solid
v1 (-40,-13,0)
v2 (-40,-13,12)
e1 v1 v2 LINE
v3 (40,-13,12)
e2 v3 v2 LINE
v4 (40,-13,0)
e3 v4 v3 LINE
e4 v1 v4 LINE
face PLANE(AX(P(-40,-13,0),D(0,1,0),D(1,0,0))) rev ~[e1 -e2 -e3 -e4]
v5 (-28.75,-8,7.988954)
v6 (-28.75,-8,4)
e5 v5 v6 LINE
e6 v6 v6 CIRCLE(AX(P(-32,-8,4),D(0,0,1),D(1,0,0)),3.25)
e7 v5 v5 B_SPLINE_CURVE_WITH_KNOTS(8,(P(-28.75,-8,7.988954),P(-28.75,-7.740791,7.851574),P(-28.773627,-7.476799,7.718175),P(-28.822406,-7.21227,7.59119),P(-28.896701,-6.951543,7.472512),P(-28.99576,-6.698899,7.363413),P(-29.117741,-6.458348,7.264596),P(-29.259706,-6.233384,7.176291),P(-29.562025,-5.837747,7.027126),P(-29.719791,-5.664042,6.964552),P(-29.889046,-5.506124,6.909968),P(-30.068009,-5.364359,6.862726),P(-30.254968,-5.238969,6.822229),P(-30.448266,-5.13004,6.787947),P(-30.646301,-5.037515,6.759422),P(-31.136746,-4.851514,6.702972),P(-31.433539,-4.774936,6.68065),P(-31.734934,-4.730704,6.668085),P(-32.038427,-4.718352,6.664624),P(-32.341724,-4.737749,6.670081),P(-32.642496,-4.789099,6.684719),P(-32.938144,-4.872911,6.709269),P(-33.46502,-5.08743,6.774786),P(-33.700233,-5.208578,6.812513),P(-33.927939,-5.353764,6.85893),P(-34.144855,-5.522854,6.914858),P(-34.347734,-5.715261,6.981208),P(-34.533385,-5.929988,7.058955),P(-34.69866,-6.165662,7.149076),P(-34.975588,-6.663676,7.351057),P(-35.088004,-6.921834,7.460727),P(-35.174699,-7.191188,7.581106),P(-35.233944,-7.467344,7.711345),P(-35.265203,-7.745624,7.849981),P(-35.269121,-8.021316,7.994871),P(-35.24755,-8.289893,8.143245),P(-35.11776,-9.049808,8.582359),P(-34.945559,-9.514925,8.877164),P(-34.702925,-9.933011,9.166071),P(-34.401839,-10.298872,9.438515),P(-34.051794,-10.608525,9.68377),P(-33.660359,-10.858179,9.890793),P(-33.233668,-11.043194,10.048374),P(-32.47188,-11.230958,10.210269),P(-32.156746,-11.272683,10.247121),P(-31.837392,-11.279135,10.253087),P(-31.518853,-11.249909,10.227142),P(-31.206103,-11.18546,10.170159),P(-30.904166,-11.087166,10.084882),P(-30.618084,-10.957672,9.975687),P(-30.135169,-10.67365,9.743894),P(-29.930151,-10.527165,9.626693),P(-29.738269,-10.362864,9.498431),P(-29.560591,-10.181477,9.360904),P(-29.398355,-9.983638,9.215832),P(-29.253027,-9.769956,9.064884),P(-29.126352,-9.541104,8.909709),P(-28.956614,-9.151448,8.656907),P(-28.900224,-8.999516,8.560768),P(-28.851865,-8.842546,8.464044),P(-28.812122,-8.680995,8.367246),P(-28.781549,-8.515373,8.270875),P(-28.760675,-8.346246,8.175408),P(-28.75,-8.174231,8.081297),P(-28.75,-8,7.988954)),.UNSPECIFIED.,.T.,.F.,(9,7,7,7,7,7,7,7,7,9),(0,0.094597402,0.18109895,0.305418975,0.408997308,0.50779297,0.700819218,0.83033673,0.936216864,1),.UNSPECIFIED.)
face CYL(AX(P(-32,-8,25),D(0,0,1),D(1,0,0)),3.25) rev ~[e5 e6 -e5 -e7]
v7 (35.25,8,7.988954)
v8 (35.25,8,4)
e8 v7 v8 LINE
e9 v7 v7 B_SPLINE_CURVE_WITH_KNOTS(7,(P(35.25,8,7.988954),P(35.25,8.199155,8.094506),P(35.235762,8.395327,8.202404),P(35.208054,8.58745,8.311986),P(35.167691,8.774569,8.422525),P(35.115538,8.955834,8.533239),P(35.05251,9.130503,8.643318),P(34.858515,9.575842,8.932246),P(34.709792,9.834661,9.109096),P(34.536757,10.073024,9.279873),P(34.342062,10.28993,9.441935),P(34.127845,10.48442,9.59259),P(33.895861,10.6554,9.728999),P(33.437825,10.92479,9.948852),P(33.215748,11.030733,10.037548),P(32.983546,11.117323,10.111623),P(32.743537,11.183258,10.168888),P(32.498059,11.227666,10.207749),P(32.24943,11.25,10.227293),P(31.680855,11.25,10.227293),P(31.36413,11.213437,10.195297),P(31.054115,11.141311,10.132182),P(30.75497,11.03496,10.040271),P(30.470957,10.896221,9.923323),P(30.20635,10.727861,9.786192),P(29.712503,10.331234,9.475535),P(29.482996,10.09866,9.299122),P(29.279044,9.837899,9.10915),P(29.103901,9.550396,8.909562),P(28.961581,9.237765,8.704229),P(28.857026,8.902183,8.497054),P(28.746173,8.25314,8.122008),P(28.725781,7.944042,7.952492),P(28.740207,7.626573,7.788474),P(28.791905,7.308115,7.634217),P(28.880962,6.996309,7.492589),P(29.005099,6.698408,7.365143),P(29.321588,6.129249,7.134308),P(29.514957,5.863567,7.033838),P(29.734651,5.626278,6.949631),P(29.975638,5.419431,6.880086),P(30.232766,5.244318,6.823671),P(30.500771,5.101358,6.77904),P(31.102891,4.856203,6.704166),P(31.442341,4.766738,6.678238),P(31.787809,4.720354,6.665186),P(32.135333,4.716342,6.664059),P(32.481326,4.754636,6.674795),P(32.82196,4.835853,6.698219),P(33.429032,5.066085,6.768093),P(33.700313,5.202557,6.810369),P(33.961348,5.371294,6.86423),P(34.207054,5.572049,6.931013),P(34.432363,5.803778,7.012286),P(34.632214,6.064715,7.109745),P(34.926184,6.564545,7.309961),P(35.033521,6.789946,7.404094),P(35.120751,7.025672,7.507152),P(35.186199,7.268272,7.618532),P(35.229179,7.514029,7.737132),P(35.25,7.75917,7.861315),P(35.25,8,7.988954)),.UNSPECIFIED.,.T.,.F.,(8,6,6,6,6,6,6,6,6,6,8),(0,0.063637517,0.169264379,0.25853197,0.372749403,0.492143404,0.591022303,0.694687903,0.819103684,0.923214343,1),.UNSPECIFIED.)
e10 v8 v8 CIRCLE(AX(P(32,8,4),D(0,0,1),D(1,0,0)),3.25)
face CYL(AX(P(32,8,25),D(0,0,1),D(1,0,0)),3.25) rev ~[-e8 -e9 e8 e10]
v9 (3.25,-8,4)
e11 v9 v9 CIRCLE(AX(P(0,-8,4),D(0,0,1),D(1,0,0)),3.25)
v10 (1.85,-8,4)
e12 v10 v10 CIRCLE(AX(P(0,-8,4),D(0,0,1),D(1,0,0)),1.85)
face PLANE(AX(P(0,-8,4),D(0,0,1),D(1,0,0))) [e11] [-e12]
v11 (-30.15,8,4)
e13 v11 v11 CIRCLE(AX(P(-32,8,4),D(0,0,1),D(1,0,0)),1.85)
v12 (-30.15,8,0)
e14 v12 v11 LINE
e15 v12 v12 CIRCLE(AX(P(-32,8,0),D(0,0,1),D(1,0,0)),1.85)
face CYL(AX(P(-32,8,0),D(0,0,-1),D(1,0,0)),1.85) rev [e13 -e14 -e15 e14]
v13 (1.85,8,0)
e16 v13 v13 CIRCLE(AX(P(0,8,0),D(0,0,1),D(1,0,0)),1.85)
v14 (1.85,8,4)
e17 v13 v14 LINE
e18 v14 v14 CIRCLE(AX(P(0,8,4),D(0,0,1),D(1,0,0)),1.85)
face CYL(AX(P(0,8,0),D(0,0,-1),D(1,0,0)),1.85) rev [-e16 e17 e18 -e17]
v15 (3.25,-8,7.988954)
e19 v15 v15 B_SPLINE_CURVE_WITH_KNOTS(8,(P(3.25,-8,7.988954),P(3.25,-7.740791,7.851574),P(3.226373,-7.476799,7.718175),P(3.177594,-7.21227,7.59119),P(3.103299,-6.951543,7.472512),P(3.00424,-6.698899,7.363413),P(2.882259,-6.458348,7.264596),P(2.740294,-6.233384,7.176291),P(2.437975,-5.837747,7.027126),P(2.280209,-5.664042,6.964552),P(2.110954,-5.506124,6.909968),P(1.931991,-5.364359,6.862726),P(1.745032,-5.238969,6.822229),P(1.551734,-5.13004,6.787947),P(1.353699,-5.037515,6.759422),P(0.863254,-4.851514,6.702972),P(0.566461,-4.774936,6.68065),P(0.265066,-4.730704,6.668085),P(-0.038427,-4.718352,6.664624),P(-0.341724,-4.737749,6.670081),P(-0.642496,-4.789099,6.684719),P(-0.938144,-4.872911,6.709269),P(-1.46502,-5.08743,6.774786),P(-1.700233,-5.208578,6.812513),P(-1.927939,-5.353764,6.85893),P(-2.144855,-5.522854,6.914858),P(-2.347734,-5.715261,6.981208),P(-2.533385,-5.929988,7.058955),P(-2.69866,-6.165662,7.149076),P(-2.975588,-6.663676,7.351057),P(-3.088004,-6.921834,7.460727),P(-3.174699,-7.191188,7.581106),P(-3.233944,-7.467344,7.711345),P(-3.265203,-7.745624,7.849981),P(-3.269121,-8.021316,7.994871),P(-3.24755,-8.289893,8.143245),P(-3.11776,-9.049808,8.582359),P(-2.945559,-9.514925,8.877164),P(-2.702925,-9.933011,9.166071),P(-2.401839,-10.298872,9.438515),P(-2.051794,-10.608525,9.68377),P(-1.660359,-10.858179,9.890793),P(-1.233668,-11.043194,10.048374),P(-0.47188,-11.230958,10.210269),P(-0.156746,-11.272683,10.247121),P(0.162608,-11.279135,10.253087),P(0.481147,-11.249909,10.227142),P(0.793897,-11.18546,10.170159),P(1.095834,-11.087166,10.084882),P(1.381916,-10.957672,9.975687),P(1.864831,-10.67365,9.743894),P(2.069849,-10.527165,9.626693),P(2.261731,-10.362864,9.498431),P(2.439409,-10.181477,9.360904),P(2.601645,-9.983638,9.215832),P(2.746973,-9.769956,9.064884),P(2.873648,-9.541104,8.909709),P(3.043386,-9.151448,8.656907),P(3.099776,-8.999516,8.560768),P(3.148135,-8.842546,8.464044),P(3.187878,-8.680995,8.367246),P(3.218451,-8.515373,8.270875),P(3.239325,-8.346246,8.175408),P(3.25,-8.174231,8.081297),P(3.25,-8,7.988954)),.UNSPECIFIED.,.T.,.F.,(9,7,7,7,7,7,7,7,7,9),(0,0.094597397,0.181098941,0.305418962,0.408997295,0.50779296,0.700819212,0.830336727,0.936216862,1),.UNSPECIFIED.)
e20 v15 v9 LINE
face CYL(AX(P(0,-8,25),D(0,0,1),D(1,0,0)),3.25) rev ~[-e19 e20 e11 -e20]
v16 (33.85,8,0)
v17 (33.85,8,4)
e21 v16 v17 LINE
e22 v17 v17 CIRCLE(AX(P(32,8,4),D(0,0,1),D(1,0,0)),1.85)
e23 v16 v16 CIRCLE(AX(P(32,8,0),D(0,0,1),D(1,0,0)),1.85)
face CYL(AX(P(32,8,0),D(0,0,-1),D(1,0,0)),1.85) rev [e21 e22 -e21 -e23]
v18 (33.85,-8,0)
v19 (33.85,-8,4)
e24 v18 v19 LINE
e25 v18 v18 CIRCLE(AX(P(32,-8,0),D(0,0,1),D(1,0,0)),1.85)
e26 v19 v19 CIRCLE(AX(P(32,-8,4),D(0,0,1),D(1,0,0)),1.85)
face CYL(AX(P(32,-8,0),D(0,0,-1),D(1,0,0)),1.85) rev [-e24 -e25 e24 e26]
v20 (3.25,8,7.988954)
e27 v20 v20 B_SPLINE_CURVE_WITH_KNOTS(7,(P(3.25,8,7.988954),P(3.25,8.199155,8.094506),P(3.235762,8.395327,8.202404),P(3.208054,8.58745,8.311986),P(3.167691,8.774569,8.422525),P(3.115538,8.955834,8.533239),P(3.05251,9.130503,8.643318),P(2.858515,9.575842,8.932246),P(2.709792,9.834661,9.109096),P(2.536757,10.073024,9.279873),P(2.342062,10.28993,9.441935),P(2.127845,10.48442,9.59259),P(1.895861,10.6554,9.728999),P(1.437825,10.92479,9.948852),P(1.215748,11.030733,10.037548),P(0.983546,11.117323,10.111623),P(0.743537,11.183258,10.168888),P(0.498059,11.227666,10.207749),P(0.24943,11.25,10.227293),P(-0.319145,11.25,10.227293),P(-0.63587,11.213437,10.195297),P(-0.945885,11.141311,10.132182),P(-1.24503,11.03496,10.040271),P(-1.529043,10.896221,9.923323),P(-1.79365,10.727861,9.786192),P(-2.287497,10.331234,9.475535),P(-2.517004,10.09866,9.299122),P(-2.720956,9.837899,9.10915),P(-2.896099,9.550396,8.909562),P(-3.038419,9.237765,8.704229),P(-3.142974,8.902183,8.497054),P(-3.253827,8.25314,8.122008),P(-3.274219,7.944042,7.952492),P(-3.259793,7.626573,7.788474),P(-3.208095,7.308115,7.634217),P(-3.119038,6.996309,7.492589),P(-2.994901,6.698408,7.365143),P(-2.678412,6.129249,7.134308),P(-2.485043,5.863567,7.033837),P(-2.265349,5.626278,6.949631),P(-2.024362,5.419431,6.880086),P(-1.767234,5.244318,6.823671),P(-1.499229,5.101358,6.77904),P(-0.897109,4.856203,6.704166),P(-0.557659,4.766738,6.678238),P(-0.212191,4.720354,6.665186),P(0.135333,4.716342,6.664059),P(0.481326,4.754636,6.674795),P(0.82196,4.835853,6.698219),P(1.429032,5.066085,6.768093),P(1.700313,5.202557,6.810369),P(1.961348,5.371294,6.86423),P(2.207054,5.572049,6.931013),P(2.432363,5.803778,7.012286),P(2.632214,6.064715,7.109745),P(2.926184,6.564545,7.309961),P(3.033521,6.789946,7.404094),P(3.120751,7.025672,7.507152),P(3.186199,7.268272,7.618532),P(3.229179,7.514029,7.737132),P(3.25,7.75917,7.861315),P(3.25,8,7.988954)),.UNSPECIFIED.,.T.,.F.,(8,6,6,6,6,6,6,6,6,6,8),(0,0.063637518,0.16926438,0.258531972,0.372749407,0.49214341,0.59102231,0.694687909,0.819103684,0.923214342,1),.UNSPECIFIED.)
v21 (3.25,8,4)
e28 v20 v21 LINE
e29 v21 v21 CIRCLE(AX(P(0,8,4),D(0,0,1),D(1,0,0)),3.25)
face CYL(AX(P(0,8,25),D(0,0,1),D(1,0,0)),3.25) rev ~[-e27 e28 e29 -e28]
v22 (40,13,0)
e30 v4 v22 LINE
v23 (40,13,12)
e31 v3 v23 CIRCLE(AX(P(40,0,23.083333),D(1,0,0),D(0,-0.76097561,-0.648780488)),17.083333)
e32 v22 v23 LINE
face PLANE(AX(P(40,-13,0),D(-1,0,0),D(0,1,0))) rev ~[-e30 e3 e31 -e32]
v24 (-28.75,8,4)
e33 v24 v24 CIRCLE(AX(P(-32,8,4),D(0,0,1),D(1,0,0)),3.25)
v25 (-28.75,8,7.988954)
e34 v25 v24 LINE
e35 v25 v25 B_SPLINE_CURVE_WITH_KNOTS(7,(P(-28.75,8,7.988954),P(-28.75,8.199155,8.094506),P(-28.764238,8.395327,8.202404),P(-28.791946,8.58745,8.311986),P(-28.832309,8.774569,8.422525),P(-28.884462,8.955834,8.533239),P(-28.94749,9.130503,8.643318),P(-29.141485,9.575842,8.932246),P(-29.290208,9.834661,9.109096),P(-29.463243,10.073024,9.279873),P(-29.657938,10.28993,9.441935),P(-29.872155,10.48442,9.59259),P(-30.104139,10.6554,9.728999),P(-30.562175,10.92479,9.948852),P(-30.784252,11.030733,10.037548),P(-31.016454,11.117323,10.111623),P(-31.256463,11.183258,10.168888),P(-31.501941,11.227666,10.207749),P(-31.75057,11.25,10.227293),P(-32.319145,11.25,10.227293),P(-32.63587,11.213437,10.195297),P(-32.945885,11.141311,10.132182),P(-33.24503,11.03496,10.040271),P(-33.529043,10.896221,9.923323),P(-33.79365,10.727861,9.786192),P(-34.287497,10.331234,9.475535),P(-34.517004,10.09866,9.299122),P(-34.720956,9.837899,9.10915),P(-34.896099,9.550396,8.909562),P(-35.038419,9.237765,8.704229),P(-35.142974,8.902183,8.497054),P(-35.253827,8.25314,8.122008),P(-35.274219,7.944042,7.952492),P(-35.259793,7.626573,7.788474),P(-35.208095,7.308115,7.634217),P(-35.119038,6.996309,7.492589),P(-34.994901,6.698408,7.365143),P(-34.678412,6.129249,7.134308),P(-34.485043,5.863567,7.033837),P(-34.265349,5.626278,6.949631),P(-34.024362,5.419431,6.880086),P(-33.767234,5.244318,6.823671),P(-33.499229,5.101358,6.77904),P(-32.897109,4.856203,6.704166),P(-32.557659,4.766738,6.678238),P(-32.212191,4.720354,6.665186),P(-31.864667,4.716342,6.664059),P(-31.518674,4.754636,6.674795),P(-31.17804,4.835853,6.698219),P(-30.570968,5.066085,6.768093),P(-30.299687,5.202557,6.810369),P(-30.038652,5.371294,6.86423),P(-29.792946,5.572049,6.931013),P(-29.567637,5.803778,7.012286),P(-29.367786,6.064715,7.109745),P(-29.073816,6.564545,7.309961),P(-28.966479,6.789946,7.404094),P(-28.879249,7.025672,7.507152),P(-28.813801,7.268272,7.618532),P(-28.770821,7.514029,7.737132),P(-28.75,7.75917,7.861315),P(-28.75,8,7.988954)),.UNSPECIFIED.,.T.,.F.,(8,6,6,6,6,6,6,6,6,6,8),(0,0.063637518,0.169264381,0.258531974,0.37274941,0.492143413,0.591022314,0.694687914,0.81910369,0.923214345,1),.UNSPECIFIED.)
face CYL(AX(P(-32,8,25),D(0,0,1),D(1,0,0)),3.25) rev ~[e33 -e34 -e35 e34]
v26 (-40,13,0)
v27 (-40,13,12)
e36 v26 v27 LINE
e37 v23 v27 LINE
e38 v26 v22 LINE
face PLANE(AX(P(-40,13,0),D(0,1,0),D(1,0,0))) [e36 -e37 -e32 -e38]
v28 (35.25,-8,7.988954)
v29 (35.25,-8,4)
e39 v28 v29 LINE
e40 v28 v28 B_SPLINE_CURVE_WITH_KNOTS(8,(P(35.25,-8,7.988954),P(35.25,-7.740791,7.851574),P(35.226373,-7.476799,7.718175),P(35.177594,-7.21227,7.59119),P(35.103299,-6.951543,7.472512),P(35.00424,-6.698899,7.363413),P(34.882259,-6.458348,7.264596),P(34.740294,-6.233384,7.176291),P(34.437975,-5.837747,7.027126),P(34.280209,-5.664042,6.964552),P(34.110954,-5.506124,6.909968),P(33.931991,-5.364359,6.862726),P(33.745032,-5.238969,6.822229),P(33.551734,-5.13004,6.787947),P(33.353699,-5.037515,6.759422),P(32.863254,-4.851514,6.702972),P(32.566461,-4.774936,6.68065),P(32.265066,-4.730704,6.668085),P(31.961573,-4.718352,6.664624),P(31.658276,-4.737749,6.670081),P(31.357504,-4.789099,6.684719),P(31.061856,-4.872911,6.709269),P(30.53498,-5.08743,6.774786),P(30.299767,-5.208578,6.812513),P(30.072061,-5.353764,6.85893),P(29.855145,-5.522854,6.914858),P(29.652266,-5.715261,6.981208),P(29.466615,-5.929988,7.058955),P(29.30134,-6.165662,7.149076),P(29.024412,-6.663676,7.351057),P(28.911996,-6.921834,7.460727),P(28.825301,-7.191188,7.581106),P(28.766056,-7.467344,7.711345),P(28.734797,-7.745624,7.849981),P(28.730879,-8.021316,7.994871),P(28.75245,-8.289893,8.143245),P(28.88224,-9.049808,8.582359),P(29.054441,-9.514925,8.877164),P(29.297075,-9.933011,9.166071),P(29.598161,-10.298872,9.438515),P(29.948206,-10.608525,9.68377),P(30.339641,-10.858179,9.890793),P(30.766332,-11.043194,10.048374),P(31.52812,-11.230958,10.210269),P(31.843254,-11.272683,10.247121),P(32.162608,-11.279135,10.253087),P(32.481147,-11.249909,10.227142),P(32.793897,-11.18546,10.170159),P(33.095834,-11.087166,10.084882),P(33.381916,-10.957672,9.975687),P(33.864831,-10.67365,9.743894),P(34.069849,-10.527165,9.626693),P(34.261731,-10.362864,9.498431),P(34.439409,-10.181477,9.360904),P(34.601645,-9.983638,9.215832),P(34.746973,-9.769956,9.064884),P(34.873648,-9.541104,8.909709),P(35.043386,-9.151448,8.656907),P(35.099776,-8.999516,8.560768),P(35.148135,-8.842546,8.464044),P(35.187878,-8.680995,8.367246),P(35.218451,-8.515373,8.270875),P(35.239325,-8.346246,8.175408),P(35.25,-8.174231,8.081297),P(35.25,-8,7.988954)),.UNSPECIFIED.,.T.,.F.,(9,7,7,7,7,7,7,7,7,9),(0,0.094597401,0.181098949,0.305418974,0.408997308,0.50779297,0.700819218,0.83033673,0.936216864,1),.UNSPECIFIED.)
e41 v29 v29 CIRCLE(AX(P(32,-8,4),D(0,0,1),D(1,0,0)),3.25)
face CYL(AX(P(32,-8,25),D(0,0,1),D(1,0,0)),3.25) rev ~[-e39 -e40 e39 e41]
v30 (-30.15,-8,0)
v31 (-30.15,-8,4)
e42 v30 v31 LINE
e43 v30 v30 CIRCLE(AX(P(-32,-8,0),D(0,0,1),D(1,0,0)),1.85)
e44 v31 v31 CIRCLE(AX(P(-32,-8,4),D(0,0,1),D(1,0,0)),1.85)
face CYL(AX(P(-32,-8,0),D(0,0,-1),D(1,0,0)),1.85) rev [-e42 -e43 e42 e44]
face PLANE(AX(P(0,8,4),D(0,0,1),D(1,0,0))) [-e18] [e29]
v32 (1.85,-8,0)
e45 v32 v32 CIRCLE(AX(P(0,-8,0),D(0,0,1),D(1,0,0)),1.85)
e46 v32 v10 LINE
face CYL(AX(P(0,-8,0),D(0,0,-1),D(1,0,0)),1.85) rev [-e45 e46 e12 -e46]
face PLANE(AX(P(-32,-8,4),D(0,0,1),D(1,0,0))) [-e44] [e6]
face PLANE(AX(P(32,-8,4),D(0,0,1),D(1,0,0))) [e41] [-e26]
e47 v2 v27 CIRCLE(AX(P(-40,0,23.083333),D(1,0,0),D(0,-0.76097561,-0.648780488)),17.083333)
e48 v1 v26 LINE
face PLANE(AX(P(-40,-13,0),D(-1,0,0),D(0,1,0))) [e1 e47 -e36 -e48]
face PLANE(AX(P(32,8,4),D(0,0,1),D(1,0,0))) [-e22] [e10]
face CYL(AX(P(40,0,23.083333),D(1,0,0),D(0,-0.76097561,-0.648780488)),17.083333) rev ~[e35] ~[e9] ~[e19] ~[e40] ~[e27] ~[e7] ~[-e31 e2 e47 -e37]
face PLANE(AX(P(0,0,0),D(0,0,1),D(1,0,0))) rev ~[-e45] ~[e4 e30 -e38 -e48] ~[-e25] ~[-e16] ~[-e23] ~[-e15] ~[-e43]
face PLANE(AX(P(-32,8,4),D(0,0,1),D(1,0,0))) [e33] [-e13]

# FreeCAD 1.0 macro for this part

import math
import FreeCAD as App
import Part
import Sketcher

V = App.Vector

doc = App.newDocument("Part")
body = doc.addObject("PartDesign::Body", "Body")

sketch1 = doc.addObject("Sketcher::SketchObject", "Sketch")
body.addObject(sketch1)
sketch1.AttachmentSupport = (doc.XY_Plane, [""])
sketch1.MapMode = "FlatFace"
sketch1.addGeometry(Part.LineSegment(V(-40, 13, 0), V(-40, -13, 0)), False)
sketch1.addGeometry(Part.LineSegment(V(-40, -13, 0), V(40, -13, 0)), False)
sketch1.addGeometry(Part.LineSegment(V(40, -13, 0), V(40, 13, 0)), False)
sketch1.addGeometry(Part.LineSegment(V(40, 13, 0), V(-40, 13, 0)), False)
sketch1.addGeometry(Part.Circle(V(-32, -8, 0), V(0, 0, 1), 1.85), False)
sketch1.addGeometry(Part.Circle(V(0, -8, 0), V(0, 0, 1), 1.85), False)
sketch1.addGeometry(Part.Circle(V(32, -8, 0), V(0, 0, 1), 1.85), False)
sketch1.addGeometry(Part.Circle(V(-32, 8, 0), V(0, 0, 1), 1.85), False)
sketch1.addGeometry(Part.Circle(V(0, 8, 0), V(0, 0, 1), 1.85), False)
sketch1.addGeometry(Part.Circle(V(32, 8, 0), V(0, 0, 1), 1.85), False)
sketch1.addConstraint(Sketcher.Constraint("Coincident", 0, 2, 1, 1))
sketch1.addConstraint(Sketcher.Constraint("Coincident", 1, 2, 2, 1))
sketch1.addConstraint(Sketcher.Constraint("Coincident", 2, 2, 3, 1))
sketch1.addConstraint(Sketcher.Constraint("Coincident", 3, 2, 0, 1))
sketch1.addConstraint(Sketcher.Constraint("Vertical", 0))
sketch1.addConstraint(Sketcher.Constraint("Horizontal", 1))
sketch1.addConstraint(Sketcher.Constraint("Vertical", 2))
sketch1.addConstraint(Sketcher.Constraint("Horizontal", 3))
sketch1.addConstraint(Sketcher.Constraint("Equal", 4, 5))
sketch1.addConstraint(Sketcher.Constraint("Equal", 5, 6))
sketch1.addConstraint(Sketcher.Constraint("Equal", 6, 7))
sketch1.addConstraint(Sketcher.Constraint("Equal", 7, 8))
sketch1.addConstraint(Sketcher.Constraint("Equal", 8, 9))
sketch1.addConstraint(Sketcher.Constraint("Symmetric", 6, 3, 7, 3, -1, 1))
sketch1.addConstraint(Sketcher.Constraint("Symmetric", 5, 3, 8, 3, -1, 1))
sketch1.addConstraint(Sketcher.Constraint("Symmetric", 4, 3, 9, 3, -1, 1))
sketch1.addConstraint(Sketcher.Constraint("Symmetric", 0, 2, 2, 2, -1, 1))
sketch1.addConstraint(Sketcher.Constraint("Symmetric", 4, 3, 6, 3, -2))
sketch1.addConstraint(Sketcher.Constraint("PointOnObject", 5, 3, -2))
sketch1.addConstraint(Sketcher.Constraint("Horizontal", 4, 3, 5, 3))
sketch1.addConstraint(Sketcher.Constraint("Diameter", 4, 3.7))
sketch1.addConstraint(Sketcher.Constraint("DistanceX", 1, 1, 1, 2, 80.0))
sketch1.addConstraint(Sketcher.Constraint("DistanceY", 0, 2, 0, 1, 26.0))
sketch1.addConstraint(Sketcher.Constraint("DistanceX", 4, 3, -1, 1, 32.0))
sketch1.addConstraint(Sketcher.Constraint("DistanceY", 4, 3, -1, 1, 8.0))
pad1 = doc.addObject("PartDesign::Pad", "Pad")
body.addObject(pad1)
pad1.Profile = sketch1
pad1.Length = 25

sketch2 = doc.addObject("Sketcher::SketchObject", "Sketch001")
body.addObject(sketch2)
sketch2.AttachmentSupport = (doc.XY_Plane, [""])
sketch2.MapMode = "FlatFace"
sketch2.AttachmentOffset = App.Placement(V(0, 0, 25), App.Rotation())
sketch2.addGeometry(Part.Circle(V(-32, -8, 0), V(0, 0, 1), 3.25), False)
sketch2.addGeometry(Part.Circle(V(-32, -8, 0), V(0, 0, 1), 1.85), False)
sketch2.addGeometry(Part.Circle(V(-32, 8, 0), V(0, 0, 1), 3.25), False)
sketch2.addGeometry(Part.Circle(V(-32, 8, 0), V(0, 0, 1), 1.85), False)
sketch2.addGeometry(Part.Circle(V(0, 8, 0), V(0, 0, 1), 3.25), False)
sketch2.addGeometry(Part.Circle(V(0, 8, 0), V(0, 0, 1), 1.85), False)
sketch2.addGeometry(Part.Circle(V(0, -8, 0), V(0, 0, 1), 3.25), False)
sketch2.addGeometry(Part.Circle(V(0, -8, 0), V(0, 0, 1), 1.85), False)
sketch2.addGeometry(Part.Circle(V(32, 8, 0), V(0, 0, 1), 3.25), False)
sketch2.addGeometry(Part.Circle(V(32, 8, 0), V(0, 0, 1), 1.85), False)
sketch2.addGeometry(Part.Circle(V(32, -8, 0), V(0, 0, 1), 3.25), False)
sketch2.addGeometry(Part.Circle(V(32, -8, 0), V(0, 0, 1), 1.85), False)
sketch2.addConstraint(Sketcher.Constraint("Coincident", 1, 3, 0, 3))
sketch2.addConstraint(Sketcher.Constraint("Coincident", 3, 3, 2, 3))
sketch2.addConstraint(Sketcher.Constraint("Coincident", 5, 3, 4, 3))
sketch2.addConstraint(Sketcher.Constraint("Coincident", 7, 3, 6, 3))
sketch2.addConstraint(Sketcher.Constraint("Coincident", 9, 3, 8, 3))
sketch2.addConstraint(Sketcher.Constraint("Coincident", 11, 3, 10, 3))
sketch2.addConstraint(Sketcher.Constraint("Equal", 0, 2))
sketch2.addConstraint(Sketcher.Constraint("Equal", 1, 3))
sketch2.addConstraint(Sketcher.Constraint("Equal", 2, 4))
sketch2.addConstraint(Sketcher.Constraint("Equal", 3, 5))
sketch2.addConstraint(Sketcher.Constraint("Equal", 4, 6))
sketch2.addConstraint(Sketcher.Constraint("Equal", 5, 7))
sketch2.addConstraint(Sketcher.Constraint("Equal", 6, 8))
sketch2.addConstraint(Sketcher.Constraint("Equal", 7, 9))
sketch2.addConstraint(Sketcher.Constraint("Equal", 8, 10))
sketch2.addConstraint(Sketcher.Constraint("Equal", 9, 11))
sketch2.addConstraint(Sketcher.Constraint("Symmetric", 4, 3, 6, 3, -1, 1))
sketch2.addConstraint(Sketcher.Constraint("Symmetric", 0, 3, 8, 3, -1, 1))
sketch2.addConstraint(Sketcher.Constraint("Symmetric", 2, 3, 10, 3, -1, 1))
sketch2.addConstraint(Sketcher.Constraint("Symmetric", 2, 3, 8, 3, -2))
sketch2.addConstraint(Sketcher.Constraint("PointOnObject", 4, 3, -2))
sketch2.addConstraint(Sketcher.Constraint("Horizontal", 3, 3, 4, 3))
sketch2.addConstraint(Sketcher.Constraint("Diameter", 0, 6.5))
sketch2.addConstraint(Sketcher.Constraint("Diameter", 1, 3.7))
sketch2.addConstraint(Sketcher.Constraint("DistanceX", 0, 3, -1, 1, 32.0))
sketch2.addConstraint(Sketcher.Constraint("DistanceY", 0, 3, -1, 1, 8.0))
pocket1 = doc.addObject("PartDesign::Pocket", "Pocket")
body.addObject(pocket1)
pocket1.Profile = sketch2
pocket1.Length = 21

sketch3 = doc.addObject("Sketcher::SketchObject", "Sketch002")
body.addObject(sketch3)
sketch3.AttachmentSupport = (doc.YZ_Plane, [""])
sketch3.MapMode = "FlatFace"
sketch3.AttachmentOffset = App.Placement(V(0, 0, 40), App.Rotation())
sketch3.addGeometry(Part.LineSegment(V(-13, 25, 0), V(-13, 12, 0)), False)
sketch3.addGeometry(Part.ArcOfCircle(Part.Circle(V(0, 23.083333, 0), V(0, 0, 1), 17.083333), math.radians(-139.550281), math.radians(-40.449719)), False)
sketch3.addGeometry(Part.LineSegment(V(13, 12, 0), V(13, 25, 0)), False)
sketch3.addGeometry(Part.LineSegment(V(13, 25, 0), V(-13, 25, 0)), False)
sketch3.addConstraint(Sketcher.Constraint("Coincident", 0, 2, 1, 1))
sketch3.addConstraint(Sketcher.Constraint("Coincident", 1, 2, 2, 1))
sketch3.addConstraint(Sketcher.Constraint("Coincident", 2, 2, 3, 1))
sketch3.addConstraint(Sketcher.Constraint("Coincident", 3, 2, 0, 1))
sketch3.addConstraint(Sketcher.Constraint("Vertical", 0))
sketch3.addConstraint(Sketcher.Constraint("Vertical", 2))
sketch3.addConstraint(Sketcher.Constraint("Horizontal", 3))
sketch3.addConstraint(Sketcher.Constraint("Symmetric", 0, 2, 1, 2, -2))
sketch3.addConstraint(Sketcher.Constraint("DistanceX", 3, 2, 3, 1, 26.0))
sketch3.addConstraint(Sketcher.Constraint("DistanceY", 0, 2, 0, 1, 13.0))
sketch3.addConstraint(Sketcher.Constraint("DistanceY", -1, 1, 0, 2, 12.0))
sketch3.addConstraint(Sketcher.Constraint("Radius", 1, 17.083333))
pocket2 = doc.addObject("PartDesign::Pocket", "Pocket001")
body.addObject(pocket2)
pocket2.Profile = sketch3
pocket2.Length = 100

doc.recompute()
